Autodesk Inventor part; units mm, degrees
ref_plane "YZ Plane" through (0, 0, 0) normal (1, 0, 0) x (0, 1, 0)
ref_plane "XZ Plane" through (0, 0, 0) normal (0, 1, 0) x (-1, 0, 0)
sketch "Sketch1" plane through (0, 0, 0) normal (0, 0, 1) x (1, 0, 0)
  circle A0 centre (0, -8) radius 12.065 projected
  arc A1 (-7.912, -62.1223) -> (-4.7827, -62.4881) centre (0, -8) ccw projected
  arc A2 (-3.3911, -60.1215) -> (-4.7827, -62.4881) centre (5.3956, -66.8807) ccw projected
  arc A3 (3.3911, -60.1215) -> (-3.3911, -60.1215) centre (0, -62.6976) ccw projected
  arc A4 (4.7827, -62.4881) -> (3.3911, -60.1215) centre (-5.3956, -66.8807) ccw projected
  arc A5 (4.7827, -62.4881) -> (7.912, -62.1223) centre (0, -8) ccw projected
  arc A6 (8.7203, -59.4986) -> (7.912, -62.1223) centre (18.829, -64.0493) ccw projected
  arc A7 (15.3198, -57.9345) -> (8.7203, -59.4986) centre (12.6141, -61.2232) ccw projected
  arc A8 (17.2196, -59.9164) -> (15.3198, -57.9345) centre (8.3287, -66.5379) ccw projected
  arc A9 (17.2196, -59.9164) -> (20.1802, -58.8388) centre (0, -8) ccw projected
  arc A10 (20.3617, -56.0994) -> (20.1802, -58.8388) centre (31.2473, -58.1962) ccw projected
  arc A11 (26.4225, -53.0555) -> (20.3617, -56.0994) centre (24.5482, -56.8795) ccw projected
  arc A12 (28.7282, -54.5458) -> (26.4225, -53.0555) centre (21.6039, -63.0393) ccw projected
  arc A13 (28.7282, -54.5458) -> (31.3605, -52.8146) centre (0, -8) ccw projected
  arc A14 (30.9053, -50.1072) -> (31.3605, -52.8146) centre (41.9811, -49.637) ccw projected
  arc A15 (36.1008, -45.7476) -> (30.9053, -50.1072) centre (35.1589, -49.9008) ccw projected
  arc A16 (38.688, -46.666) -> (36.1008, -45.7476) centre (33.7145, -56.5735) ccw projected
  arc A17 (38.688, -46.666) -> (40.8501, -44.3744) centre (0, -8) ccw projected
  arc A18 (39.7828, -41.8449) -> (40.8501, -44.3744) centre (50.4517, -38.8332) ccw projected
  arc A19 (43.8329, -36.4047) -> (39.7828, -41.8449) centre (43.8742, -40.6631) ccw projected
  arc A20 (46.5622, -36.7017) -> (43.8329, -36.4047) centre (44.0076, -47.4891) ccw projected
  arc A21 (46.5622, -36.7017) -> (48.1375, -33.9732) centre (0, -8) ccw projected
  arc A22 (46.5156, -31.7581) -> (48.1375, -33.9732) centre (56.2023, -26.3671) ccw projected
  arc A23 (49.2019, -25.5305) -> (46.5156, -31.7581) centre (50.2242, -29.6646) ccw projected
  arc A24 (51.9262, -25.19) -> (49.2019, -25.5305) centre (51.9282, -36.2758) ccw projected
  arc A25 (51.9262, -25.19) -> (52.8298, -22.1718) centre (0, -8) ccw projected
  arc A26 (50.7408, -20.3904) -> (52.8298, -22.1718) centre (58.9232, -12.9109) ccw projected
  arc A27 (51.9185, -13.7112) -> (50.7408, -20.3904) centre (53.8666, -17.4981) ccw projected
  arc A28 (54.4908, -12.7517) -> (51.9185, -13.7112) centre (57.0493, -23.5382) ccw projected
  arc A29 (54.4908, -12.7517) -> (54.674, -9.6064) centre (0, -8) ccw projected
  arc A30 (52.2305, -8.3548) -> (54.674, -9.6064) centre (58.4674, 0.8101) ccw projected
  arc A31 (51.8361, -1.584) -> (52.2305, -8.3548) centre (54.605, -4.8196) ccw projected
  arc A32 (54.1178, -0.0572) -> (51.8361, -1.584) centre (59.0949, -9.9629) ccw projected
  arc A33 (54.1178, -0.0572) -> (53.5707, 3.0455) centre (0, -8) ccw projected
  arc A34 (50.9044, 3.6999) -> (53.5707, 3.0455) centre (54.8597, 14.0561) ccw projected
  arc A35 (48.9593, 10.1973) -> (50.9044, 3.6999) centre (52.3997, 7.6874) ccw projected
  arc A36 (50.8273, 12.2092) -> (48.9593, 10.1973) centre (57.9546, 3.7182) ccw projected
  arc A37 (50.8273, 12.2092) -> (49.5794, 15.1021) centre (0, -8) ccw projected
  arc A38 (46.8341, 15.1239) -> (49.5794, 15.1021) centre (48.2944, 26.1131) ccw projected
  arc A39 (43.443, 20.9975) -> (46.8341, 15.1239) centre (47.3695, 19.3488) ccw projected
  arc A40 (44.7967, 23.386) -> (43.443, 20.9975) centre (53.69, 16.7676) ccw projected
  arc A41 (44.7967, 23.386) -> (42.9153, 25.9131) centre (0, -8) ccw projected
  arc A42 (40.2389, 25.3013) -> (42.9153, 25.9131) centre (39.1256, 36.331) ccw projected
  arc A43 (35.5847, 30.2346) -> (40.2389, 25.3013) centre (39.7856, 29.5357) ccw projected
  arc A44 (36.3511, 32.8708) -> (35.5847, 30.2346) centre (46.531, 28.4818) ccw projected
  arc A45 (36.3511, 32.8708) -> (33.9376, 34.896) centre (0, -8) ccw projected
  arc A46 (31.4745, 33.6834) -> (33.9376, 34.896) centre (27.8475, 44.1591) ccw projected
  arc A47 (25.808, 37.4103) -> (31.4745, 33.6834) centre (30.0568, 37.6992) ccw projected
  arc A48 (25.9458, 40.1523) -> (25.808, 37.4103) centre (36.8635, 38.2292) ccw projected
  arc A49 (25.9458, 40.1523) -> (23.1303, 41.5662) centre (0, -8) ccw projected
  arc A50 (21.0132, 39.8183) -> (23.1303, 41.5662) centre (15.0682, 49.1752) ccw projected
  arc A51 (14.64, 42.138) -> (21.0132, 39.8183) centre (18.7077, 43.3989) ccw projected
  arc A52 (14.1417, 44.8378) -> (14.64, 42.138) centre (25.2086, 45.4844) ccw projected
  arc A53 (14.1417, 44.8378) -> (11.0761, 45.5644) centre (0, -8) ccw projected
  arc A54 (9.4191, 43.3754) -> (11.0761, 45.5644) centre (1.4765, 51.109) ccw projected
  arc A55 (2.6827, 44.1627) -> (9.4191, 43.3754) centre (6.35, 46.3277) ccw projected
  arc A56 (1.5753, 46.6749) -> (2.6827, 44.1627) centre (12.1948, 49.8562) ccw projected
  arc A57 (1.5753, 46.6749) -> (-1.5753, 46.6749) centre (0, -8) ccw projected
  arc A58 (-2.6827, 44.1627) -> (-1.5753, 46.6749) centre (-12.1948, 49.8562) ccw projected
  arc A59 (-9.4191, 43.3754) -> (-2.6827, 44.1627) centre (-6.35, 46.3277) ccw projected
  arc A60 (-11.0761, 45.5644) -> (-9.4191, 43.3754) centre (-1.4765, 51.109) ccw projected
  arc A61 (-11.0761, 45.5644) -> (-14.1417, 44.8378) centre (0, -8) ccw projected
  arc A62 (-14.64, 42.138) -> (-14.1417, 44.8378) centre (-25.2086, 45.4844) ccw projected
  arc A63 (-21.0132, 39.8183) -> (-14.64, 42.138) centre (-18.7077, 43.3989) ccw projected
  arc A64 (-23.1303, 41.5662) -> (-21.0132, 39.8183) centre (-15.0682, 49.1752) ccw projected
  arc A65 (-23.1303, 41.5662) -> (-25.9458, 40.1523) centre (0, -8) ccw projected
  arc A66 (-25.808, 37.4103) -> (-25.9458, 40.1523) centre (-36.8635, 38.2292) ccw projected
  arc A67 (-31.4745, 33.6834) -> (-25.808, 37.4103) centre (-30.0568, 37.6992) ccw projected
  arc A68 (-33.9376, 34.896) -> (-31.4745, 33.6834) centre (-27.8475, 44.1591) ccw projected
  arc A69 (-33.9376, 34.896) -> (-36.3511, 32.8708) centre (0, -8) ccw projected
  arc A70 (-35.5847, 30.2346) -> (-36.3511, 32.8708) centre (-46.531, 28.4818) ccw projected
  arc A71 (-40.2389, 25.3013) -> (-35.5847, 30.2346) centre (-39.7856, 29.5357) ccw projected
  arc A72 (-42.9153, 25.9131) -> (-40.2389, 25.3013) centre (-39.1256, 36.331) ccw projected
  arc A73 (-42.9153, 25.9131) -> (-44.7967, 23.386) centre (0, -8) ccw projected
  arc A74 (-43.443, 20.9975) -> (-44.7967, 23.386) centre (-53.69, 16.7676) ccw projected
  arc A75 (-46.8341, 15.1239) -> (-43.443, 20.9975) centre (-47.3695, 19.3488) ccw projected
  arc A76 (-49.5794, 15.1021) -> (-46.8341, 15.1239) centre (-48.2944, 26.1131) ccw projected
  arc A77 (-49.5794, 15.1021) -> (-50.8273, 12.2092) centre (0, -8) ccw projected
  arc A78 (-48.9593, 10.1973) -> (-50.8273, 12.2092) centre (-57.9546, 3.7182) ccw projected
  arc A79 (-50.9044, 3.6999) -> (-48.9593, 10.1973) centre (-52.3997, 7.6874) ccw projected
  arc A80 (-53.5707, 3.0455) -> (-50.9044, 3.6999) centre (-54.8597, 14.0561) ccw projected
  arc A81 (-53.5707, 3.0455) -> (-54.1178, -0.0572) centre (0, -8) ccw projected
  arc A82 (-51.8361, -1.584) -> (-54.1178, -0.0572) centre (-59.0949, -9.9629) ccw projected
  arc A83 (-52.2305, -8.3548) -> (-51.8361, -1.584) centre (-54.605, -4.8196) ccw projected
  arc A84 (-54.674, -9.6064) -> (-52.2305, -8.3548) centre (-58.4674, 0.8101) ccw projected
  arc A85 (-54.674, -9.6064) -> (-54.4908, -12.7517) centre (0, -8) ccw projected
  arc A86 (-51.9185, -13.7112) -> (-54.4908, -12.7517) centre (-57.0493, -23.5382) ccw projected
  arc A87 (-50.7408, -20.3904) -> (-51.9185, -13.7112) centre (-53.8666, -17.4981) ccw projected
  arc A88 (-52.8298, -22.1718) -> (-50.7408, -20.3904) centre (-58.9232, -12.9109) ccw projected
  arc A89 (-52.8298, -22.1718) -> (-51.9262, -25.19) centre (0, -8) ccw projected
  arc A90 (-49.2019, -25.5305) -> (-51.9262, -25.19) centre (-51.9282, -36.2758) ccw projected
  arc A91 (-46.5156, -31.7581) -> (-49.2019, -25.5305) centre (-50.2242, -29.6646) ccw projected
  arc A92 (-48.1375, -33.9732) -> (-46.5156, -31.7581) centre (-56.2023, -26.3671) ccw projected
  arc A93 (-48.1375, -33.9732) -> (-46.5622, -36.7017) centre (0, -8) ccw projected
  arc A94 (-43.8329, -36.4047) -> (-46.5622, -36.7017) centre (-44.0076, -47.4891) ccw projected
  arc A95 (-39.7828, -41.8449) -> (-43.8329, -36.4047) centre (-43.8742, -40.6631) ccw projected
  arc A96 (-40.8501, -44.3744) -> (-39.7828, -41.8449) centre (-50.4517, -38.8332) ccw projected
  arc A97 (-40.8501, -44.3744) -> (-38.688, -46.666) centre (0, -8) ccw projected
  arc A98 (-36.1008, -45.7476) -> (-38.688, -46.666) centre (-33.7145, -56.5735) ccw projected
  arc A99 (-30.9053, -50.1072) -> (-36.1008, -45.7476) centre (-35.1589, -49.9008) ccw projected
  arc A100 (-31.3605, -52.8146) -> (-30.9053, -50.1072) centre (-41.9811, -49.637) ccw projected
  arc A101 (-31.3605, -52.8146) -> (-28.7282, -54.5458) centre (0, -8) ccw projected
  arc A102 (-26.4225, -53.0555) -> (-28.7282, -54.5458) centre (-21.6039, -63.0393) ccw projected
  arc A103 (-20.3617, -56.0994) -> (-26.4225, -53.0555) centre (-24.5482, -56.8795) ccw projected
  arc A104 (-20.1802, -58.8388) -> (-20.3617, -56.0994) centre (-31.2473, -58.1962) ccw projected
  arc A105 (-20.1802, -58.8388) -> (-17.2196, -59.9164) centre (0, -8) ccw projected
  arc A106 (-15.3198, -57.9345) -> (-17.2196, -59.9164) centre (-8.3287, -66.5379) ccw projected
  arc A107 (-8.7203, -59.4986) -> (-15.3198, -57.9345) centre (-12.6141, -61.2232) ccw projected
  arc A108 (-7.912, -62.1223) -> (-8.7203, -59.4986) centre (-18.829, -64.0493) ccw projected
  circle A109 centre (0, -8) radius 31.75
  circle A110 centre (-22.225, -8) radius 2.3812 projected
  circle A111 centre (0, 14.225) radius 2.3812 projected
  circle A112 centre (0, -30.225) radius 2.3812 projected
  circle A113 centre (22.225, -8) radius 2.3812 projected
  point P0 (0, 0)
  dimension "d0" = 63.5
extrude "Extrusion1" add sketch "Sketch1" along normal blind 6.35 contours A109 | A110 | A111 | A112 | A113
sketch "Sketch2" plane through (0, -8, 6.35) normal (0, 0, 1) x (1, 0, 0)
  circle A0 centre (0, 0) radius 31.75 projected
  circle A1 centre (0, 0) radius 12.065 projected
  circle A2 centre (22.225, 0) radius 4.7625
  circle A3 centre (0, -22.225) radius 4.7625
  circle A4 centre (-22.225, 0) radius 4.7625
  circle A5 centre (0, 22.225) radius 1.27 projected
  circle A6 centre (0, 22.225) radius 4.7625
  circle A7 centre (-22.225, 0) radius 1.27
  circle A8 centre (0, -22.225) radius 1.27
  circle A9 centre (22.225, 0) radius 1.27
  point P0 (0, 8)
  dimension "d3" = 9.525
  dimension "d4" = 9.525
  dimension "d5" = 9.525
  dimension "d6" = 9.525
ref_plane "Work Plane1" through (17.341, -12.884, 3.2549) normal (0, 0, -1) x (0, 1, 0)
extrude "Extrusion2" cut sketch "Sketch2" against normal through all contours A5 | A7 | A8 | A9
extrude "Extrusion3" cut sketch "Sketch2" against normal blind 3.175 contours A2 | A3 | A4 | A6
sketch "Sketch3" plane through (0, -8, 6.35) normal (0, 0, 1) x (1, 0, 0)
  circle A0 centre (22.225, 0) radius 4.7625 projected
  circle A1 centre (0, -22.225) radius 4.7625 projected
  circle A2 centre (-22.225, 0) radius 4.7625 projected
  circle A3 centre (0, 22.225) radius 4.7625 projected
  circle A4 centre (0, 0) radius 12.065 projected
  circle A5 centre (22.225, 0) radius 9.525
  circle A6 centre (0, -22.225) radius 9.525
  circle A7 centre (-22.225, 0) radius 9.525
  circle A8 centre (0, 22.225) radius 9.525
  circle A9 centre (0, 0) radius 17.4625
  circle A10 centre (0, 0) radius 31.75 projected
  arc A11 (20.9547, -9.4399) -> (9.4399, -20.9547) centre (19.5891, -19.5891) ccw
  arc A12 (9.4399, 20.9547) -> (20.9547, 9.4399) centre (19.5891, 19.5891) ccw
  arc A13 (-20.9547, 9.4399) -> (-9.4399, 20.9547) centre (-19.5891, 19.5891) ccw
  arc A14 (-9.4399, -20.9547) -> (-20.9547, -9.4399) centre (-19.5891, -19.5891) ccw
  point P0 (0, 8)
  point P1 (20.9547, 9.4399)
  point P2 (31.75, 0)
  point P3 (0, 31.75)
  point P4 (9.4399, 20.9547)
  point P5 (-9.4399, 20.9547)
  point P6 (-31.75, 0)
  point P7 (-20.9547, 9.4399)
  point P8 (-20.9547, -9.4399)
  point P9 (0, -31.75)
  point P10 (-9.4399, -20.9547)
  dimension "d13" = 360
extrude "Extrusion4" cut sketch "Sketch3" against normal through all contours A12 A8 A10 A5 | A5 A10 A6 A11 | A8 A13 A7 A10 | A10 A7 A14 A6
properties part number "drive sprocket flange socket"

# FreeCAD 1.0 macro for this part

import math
import FreeCAD as App
import Part
import Sketcher

V = App.Vector
Q = App.Units.Quantity

doc = App.newDocument("Part")
body = doc.addObject("PartDesign::Body", "Body")

sketch1 = body.newObject("Sketcher::SketchObject", "Sketch")
sketch1.AttachmentSupport = (doc.getObject("XY_Plane"), [""])
sketch1.MapMode = "FlatFace"
sketch1.addGeometry([
    Part.Circle(V(0, -8, 0), V(0, 0, 1), 32),
    Part.Circle(V(0, -8, 0), V(0, 0, 1), 12),
], False)
sketch1.addConstraint([
    Sketcher.Constraint("Coincident", 1, 3, 0, 3),
    Sketcher.Constraint("PointOnObject", 0, 3, -2),
    Sketcher.Constraint("Diameter", 0, Q("2.5 in")),
    Sketcher.Constraint("Diameter", 1, Q("0.95 in")),
    Sketcher.Constraint("DistanceY", 0, 3, -1, 1, 8.0),
])
pad1 = body.newObject("PartDesign::Pad", "Pad")
pad1.Profile = sketch1
pad1.Length = Q("0.25 in")

sketch2 = body.newObject("Sketcher::SketchObject", "Sketch001")
sketch2.AttachmentSupport = (doc.getObject("XY_Plane"), [""])
sketch2.MapMode = "FlatFace"
sketch2.AttachmentOffset = App.Placement(V(0, 0, 0.25 * 25.4), App.Rotation())
sketch2.addGeometry([
    Part.Circle(V(0, 14.2, 0), V(0, 0, 1), 1.3),
    Part.Circle(V(-22.2, -8, 0), V(0, 0, 1), 1.3),
    Part.Circle(V(0, -30.2, 0), V(0, 0, 1), 1.3),
    Part.Circle(V(22.2, -8, 0), V(0, 0, 1), 1.3),
], False)
sketch2.addConstraint([
    Sketcher.Constraint("Equal", 0, 1),
    Sketcher.Constraint("Equal", 1, 2),
    Sketcher.Constraint("Equal", 2, 3),
    Sketcher.Constraint("Symmetric", 1, 3, 3, 3, -2),
    Sketcher.Constraint("PointOnObject", 0, 3, -2),
    Sketcher.Constraint("PointOnObject", 2, 3, -2),
    Sketcher.Constraint("Diameter", 0, Q("0.1 in")),
    Sketcher.Constraint("DistanceY", 2, 3, 0, 3, Q("1.75 in")),
    Sketcher.Constraint("DistanceX", 1, 3, 3, 3, Q("1.75 in")),
    Sketcher.Constraint("DistanceY", 1, 3, 0, 3, Q("0.875 in")),
    Sketcher.Constraint("DistanceY", -1, 1, 0, 3, 14.225),
])
pocket1 = body.newObject("PartDesign::Pocket", "Pocket")
pocket1.Profile = sketch2
pocket1.Type = "ThroughAll"

sketch3 = body.newObject("Sketcher::SketchObject", "Sketch002")
sketch3.AttachmentSupport = (doc.getObject("XY_Plane"), [""])
sketch3.MapMode = "FlatFace"
sketch3.AttachmentOffset = App.Placement(V(0, 0, 0.25 * 25.4), App.Rotation())
sketch3.addGeometry([
    Part.Circle(V(22.2, -8, 0), V(0, 0, 1), 4.8),
    Part.Circle(V(22.2, -8, 0), V(0, 0, 1), 1.3),
    Part.Circle(V(0, -30.2, 0), V(0, 0, 1), 4.8),
    Part.Circle(V(0, -30.2, 0), V(0, 0, 1), 1.3),
    Part.Circle(V(-22.2, -8, 0), V(0, 0, 1), 4.8),
    Part.Circle(V(-22.2, -8, 0), V(0, 0, 1), 1.3),
    Part.Circle(V(0, 14.2, 0), V(0, 0, 1), 4.8),
    Part.Circle(V(0, 14.2, 0), V(0, 0, 1), 1.3),
], False)
sketch3.addConstraint([
    Sketcher.Constraint("Coincident", 1, 3, 0, 3),
    Sketcher.Constraint("Coincident", 3, 3, 2, 3),
    Sketcher.Constraint("Coincident", 5, 3, 4, 3),
    Sketcher.Constraint("Coincident", 7, 3, 6, 3),
    Sketcher.Constraint("Equal", 0, 2),
    Sketcher.Constraint("Equal", 1, 3),
    Sketcher.Constraint("Equal", 2, 4),
    Sketcher.Constraint("Equal", 3, 5),
    Sketcher.Constraint("Equal", 4, 6),
    Sketcher.Constraint("Equal", 5, 7),
    Sketcher.Constraint("Symmetric", 0, 3, 4, 3, -2),
    Sketcher.Constraint("PointOnObject", 2, 3, -2),
    Sketcher.Constraint("PointOnObject", 6, 3, -2),
    Sketcher.Constraint("Diameter", 0, Q("0.375 in")),
    Sketcher.Constraint("Diameter", 1, Q("0.1 in")),
    Sketcher.Constraint("DistanceX", 4, 3, 0, 3, Q("1.75 in")),
    Sketcher.Constraint("DistanceY", 2, 3, 6, 3, Q("1.75 in")),
    Sketcher.Constraint("DistanceY", 2, 3, 0, 3, Q("0.875 in")),
    Sketcher.Constraint("DistanceY", 0, 3, -1, 1, 8.0),
])
pocket2 = body.newObject("PartDesign::Pocket", "Pocket001")
pocket2.Profile = sketch3
pocket2.Length = Q("0.125 in")

sketch4 = body.newObject("Sketcher::SketchObject", "Sketch003")
sketch4.AttachmentSupport = (doc.getObject("XY_Plane"), [""])
sketch4.MapMode = "FlatFace"
sketch4.AttachmentOffset = App.Placement(V(0, 0, 0.25 * 25.4), App.Rotation())
sketch4.addGeometry([
    Part.ArcOfCircle(Part.Circle(V(20, 12, 0), V(0, 0, 1), 10), math.radians(172), math.radians(278)),
    Part.ArcOfCircle(Part.Circle(V(22, -8, 0), V(0, 0, 1), 10), math.radians(0), math.radians(98)),
    Part.ArcOfCircle(Part.Circle(V(0, -8, 0), V(0, 0, 1), 32), math.radians(0), math.radians(90)),
    Part.ArcOfCircle(Part.Circle(V(0, 14, 0), V(0, 0, 1), 10), math.radians(-8), math.radians(90)),
    Part.ArcOfCircle(Part.Circle(V(22, -8, 0), V(0, 0, 1), 10), math.radians(-98), math.radians(0)),
    Part.ArcOfCircle(Part.Circle(V(20, -28, 0), V(0, 0, 1), 10), math.radians(82), math.radians(188)),
    Part.ArcOfCircle(Part.Circle(V(0, -30, 0), V(0, 0, 1), 10), math.radians(-90), math.radians(8)),
    Part.ArcOfCircle(Part.Circle(V(0, -8, 0), V(0, 0, 1), 32), math.radians(-90), math.radians(0)),
    Part.ArcOfCircle(Part.Circle(V(0, 14, 0), V(0, 0, 1), 10), math.radians(90), math.radians(188)),
    Part.ArcOfCircle(Part.Circle(V(0, -8, 0), V(0, 0, 1), 32), math.radians(90), math.radians(180)),
    Part.ArcOfCircle(Part.Circle(V(-22, -8, 0), V(0, 0, 1), 10), math.radians(82), math.radians(180)),
    Part.ArcOfCircle(Part.Circle(V(-20, 12, 0), V(0, 0, 1), 10), math.radians(-98), math.radians(8)),
    Part.ArcOfCircle(Part.Circle(V(0, -8, 0), V(0, 0, 1), 32), math.radians(-180), math.radians(-90)),
    Part.ArcOfCircle(Part.Circle(V(0, -30, 0), V(0, 0, 1), 10), math.radians(172), math.radians(270)),
    Part.ArcOfCircle(Part.Circle(V(-20, -28, 0), V(0, 0, 1), 10), math.radians(-8), math.radians(98)),
    Part.ArcOfCircle(Part.Circle(V(-22, -8, 0), V(0, 0, 1), 10), math.radians(-180), math.radians(-82)),
], False)
sketch4.addConstraint([
    Sketcher.Constraint("Tangent", 0, 2, 1, 2),
    Sketcher.Constraint("Tangent", 1, 1, 2, 1),
    Sketcher.Constraint("Tangent", 2, 2, 3, 2),
    Sketcher.Constraint("Tangent", 3, 1, 0, 1),
    Sketcher.Constraint("Tangent", 4, 1, 5, 1),
    Sketcher.Constraint("Tangent", 5, 2, 6, 2),
    Sketcher.Constraint("Tangent", 6, 1, 7, 1),
    Sketcher.Constraint("Tangent", 7, 2, 4, 2),
    Sketcher.Constraint("Tangent", 8, 1, 9, 1),
    Sketcher.Constraint("Tangent", 9, 2, 10, 2),
    Sketcher.Constraint("Tangent", 10, 1, 11, 1),
    Sketcher.Constraint("Tangent", 11, 2, 8, 2),
    Sketcher.Constraint("Tangent", 12, 2, 13, 2),
    Sketcher.Constraint("Tangent", 13, 1, 14, 1),
    Sketcher.Constraint("Tangent", 14, 2, 15, 2),
    Sketcher.Constraint("Tangent", 15, 1, 12, 1),
    Sketcher.Constraint("Coincident", 4, 3, 1, 3),
    Sketcher.Constraint("Coincident", 7, 3, 2, 3),
    Sketcher.Constraint("Coincident", 8, 3, 3, 3),
    Sketcher.Constraint("Coincident", 9, 3, 2, 3),
    Sketcher.Constraint("Coincident", 12, 3, 2, 3),
    Sketcher.Constraint("Coincident", 13, 3, 6, 3),
    Sketcher.Constraint("Coincident", 15, 3, 10, 3),
    Sketcher.Constraint("Equal", 1, 3),
    Sketcher.Constraint("Equal", 3, 4),
    Sketcher.Constraint("Equal", 0, 5),
    Sketcher.Constraint("Equal", 4, 6),
    Sketcher.Constraint("Equal", 6, 8),
    Sketcher.Constraint("Equal", 8, 10),
    Sketcher.Constraint("Equal", 5, 11),
    Sketcher.Constraint("Equal", 9, 12),
    Sketcher.Constraint("Equal", 11, 14),
    Sketcher.Constraint("Symmetric", 1, 3, 10, 3, -2),
    Sketcher.Constraint("PointOnObject", 3, 3, -2),
    Sketcher.Constraint("PointOnObject", 6, 3, -2),
    Sketcher.Constraint("Horizontal", 1, 3, 2, 3),
    Sketcher.Constraint("Radius", 2, Q("1.25 in")),
    Sketcher.Constraint("Radius", 1, Q("0.375 in")),
    Sketcher.Constraint("Radius", 0, 10.2407),
    Sketcher.Constraint("DistanceY", -1, 1, 0, 2, Q("0.0567 in")),
])
pocket3 = body.newObject("PartDesign::Pocket", "Pocket002")
pocket3.Profile = sketch4
pocket3.Type = "ThroughAll"

doc.recompute()
